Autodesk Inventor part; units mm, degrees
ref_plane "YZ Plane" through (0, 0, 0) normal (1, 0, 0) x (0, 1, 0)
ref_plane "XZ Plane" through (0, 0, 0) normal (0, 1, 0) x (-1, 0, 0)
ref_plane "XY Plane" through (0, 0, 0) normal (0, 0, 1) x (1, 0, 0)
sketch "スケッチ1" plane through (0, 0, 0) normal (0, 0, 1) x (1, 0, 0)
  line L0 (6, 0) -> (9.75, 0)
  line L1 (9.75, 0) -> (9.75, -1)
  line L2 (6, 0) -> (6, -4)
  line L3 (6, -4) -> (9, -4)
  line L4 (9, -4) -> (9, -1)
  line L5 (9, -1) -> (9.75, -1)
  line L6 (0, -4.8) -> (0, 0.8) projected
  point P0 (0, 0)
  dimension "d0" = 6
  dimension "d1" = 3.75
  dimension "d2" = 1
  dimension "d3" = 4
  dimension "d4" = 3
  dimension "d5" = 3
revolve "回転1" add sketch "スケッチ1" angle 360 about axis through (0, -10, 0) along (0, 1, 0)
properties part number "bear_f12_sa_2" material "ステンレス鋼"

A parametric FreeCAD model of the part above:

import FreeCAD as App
import Part
import Sketcher
Q = App.Units.Quantity

doc = App.newDocument("Part")
body = doc.addObject("PartDesign::Body", "Body")

sketch1 = body.newObject("Sketcher::SketchObject", "Sketch")
sketch1.AttachmentSupport = (doc.getObject("XY_Plane"), [""])
sketch1.MapMode = "FlatFace"
sketch1.addGeometry([
    Part.LineSegment(App.Vector(9.8, 0, 0), App.Vector(6, 0, 0)),
    Part.LineSegment(App.Vector(6, 0, 0), App.Vector(6, -4, 0)),
    Part.LineSegment(App.Vector(6, -4, 0), App.Vector(9, -4, 0)),
    Part.LineSegment(App.Vector(9, -4, 0), App.Vector(9, -1, 0)),
    Part.LineSegment(App.Vector(9, -1, 0), App.Vector(9.8, -1, 0)),
    Part.LineSegment(App.Vector(9.8, -1, 0), App.Vector(9.8, 0, 0)),
], False)
sketch1.addConstraint([
    Sketcher.Constraint("Coincident", 0, 2, 1, 1),
    Sketcher.Constraint("Coincident", 1, 2, 2, 1),
    Sketcher.Constraint("Coincident", 2, 2, 3, 1),
    Sketcher.Constraint("Coincident", 3, 2, 4, 1),
    Sketcher.Constraint("Coincident", 4, 2, 5, 1),
    Sketcher.Constraint("Coincident", 5, 2, 0, 1),
    Sketcher.Constraint("Horizontal", 0),
    Sketcher.Constraint("Vertical", 1),
    Sketcher.Constraint("Horizontal", 2),
    Sketcher.Constraint("Vertical", 3),
    Sketcher.Constraint("Horizontal", 4),
    Sketcher.Constraint("Vertical", 5),
    Sketcher.Constraint("PointOnObject", 0, 2, -1),
    Sketcher.Constraint("Equal", 2, 3),
    Sketcher.Constraint("DistanceX", 2, 1, 2, 2, Q("3 mm")),
    Sketcher.Constraint("DistanceY", 1, 2, 1, 1, Q("4 mm")),
    Sketcher.Constraint("DistanceX", -1, 1, 0, 2, Q("6 mm")),
    Sketcher.Constraint("DistanceX", 0, 2, 0, 1, Q("3.75 mm")),
])
revolution = body.newObject("PartDesign::Revolution", "Revolution")
revolution.Profile = sketch1
revolution.ReferenceAxis = (sketch1, ["V_Axis"])
revolution.Angle = 360

doc.recompute()
